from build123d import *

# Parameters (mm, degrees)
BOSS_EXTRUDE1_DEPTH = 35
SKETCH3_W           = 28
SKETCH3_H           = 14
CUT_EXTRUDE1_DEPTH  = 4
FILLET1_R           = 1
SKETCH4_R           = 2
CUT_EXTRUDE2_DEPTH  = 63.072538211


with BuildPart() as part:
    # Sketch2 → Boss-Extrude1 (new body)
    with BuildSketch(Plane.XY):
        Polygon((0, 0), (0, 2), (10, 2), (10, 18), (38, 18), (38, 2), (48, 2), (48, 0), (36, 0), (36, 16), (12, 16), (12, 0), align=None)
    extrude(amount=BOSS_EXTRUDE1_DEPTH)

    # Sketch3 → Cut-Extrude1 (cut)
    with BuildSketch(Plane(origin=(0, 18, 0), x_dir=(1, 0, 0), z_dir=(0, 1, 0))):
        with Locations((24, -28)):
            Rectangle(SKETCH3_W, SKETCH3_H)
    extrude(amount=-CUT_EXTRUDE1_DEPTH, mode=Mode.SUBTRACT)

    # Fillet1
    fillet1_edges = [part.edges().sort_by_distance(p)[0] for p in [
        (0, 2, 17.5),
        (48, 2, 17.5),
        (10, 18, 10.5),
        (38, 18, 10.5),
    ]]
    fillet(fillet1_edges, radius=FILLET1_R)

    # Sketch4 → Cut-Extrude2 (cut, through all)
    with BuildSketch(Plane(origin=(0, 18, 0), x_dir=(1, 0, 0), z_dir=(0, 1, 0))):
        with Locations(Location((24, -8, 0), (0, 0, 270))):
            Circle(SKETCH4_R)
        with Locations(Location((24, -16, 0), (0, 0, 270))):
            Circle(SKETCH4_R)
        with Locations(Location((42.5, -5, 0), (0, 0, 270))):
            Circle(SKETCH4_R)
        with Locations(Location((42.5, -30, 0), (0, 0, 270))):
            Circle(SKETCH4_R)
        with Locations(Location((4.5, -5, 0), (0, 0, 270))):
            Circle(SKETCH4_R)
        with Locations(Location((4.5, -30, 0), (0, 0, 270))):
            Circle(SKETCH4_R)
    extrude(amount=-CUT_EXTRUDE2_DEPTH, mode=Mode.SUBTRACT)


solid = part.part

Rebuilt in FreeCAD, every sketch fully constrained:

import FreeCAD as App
import Part
import Sketcher


def edges_at(feature, points):
    """Names of the edges that pass closest to the given points."""
    edges = feature.Shape.Edges
    near = lambda p: min(range(len(edges)), key=lambda i: edges[i].distToShape(Part.Vertex(*p))[0])
    return sorted({f"Edge{near(p) + 1}" for p in points})

doc = App.newDocument("Part")
body = doc.addObject("PartDesign::Body", "Body")

# Sketch on XY plane
sketch1 = body.newObject("Sketcher::SketchObject", "Sketch")
sketch1.AttachmentSupport = (doc.getObject("XY_Plane"), [""])
sketch1.MapMode = "FlatFace"
sketch1.addGeometry(Part.LineSegment(App.Vector(0, 2, 0), App.Vector(0, 0, 0)), False)
sketch1.addGeometry(Part.LineSegment(App.Vector(0, 0, 0), App.Vector(12, 0, 0)), False)
sketch1.addGeometry(Part.LineSegment(App.Vector(12, 0, 0), App.Vector(12, 16, 0)), False)
sketch1.addGeometry(Part.LineSegment(App.Vector(12, 16, 0), App.Vector(36, 16, 0)), False)
sketch1.addGeometry(Part.LineSegment(App.Vector(36, 16, 0), App.Vector(36, 0, 0)), False)
sketch1.addGeometry(Part.LineSegment(App.Vector(36, 0, 0), App.Vector(48, 0, 0)), False)
sketch1.addGeometry(Part.LineSegment(App.Vector(48, 0, 0), App.Vector(48, 2, 0)), False)
sketch1.addGeometry(Part.LineSegment(App.Vector(48, 2, 0), App.Vector(38, 2, 0)), False)
sketch1.addGeometry(Part.LineSegment(App.Vector(38, 2, 0), App.Vector(38, 18, 0)), False)
sketch1.addGeometry(Part.LineSegment(App.Vector(38, 18, 0), App.Vector(10, 18, 0)), False)
sketch1.addGeometry(Part.LineSegment(App.Vector(10, 18, 0), App.Vector(10, 2, 0)), False)
sketch1.addGeometry(Part.LineSegment(App.Vector(10, 2, 0), App.Vector(0, 2, 0)), False)
sketch1.addConstraint(Sketcher.Constraint("Coincident", 0, 2, 1, 1))
sketch1.addConstraint(Sketcher.Constraint("Coincident", 1, 2, 2, 1))
sketch1.addConstraint(Sketcher.Constraint("Coincident", 2, 2, 3, 1))
sketch1.addConstraint(Sketcher.Constraint("Coincident", 3, 2, 4, 1))
sketch1.addConstraint(Sketcher.Constraint("Coincident", 4, 2, 5, 1))
sketch1.addConstraint(Sketcher.Constraint("Coincident", 5, 2, 6, 1))
sketch1.addConstraint(Sketcher.Constraint("Coincident", 6, 2, 7, 1))
sketch1.addConstraint(Sketcher.Constraint("Coincident", 7, 2, 8, 1))
sketch1.addConstraint(Sketcher.Constraint("Coincident", 8, 2, 9, 1))
sketch1.addConstraint(Sketcher.Constraint("Coincident", 9, 2, 10, 1))
sketch1.addConstraint(Sketcher.Constraint("Coincident", 10, 2, 11, 1))
sketch1.addConstraint(Sketcher.Constraint("Coincident", 11, 2, 0, 1))
sketch1.addConstraint(Sketcher.Constraint("Vertical", 0))
sketch1.addConstraint(Sketcher.Constraint("Horizontal", 1))
sketch1.addConstraint(Sketcher.Constraint("Vertical", 2))
sketch1.addConstraint(Sketcher.Constraint("Horizontal", 3))
sketch1.addConstraint(Sketcher.Constraint("Vertical", 4))
sketch1.addConstraint(Sketcher.Constraint("Horizontal", 5))
sketch1.addConstraint(Sketcher.Constraint("Vertical", 6))
sketch1.addConstraint(Sketcher.Constraint("Horizontal", 7))
sketch1.addConstraint(Sketcher.Constraint("Vertical", 8))
sketch1.addConstraint(Sketcher.Constraint("Horizontal", 9))
sketch1.addConstraint(Sketcher.Constraint("Vertical", 10))
sketch1.addConstraint(Sketcher.Constraint("Horizontal", 11))
sketch1.addConstraint(Sketcher.Constraint("Coincident", 0, 2, -1, 1))
sketch1.addConstraint(Sketcher.Constraint("PointOnObject", 4, 2, -1))
sketch1.addConstraint(Sketcher.Constraint("Horizontal", 7, 2, 10, 2))
sketch1.addConstraint(Sketcher.Constraint("Equal", 1, 5))
sketch1.addConstraint(Sketcher.Constraint("Equal", 7, 11))
sketch1.addConstraint(Sketcher.Constraint("Equal", 4, 8))
sketch1.addConstraint(Sketcher.Constraint("DistanceX", 1, 1, 1, 2, 12.0))
sketch1.addConstraint(Sketcher.Constraint("DistanceX", 3, 1, 3, 2, 24.0))
sketch1.addConstraint(Sketcher.Constraint("DistanceX", 7, 2, 7, 1, 10.0))
sketch1.addConstraint(Sketcher.Constraint("DistanceY", 0, 2, 0, 1, 2.0))
sketch1.addConstraint(Sketcher.Constraint("DistanceY", 2, 1, 2, 2, 16.0))
pad1 = body.newObject("PartDesign::Pad", "Pad")
pad1.Profile = sketch1
pad1.Length = 35

# Sketch on XZ plane
sketch2 = body.newObject("Sketcher::SketchObject", "Sketch001")
sketch2.AttachmentSupport = (doc.getObject("XZ_Plane"), [""])
sketch2.MapMode = "FlatFace"
sketch2.AttachmentOffset = App.Placement(App.Vector(0, 0, -18), App.Rotation())
sketch2.addGeometry(Part.LineSegment(App.Vector(10, 21, 0), App.Vector(10, 35, 0)), False)
sketch2.addGeometry(Part.LineSegment(App.Vector(10, 35, 0), App.Vector(38, 35, 0)), False)
sketch2.addGeometry(Part.LineSegment(App.Vector(38, 35, 0), App.Vector(38, 21, 0)), False)
sketch2.addGeometry(Part.LineSegment(App.Vector(38, 21, 0), App.Vector(10, 21, 0)), False)
sketch2.addConstraint(Sketcher.Constraint("Coincident", 0, 2, 1, 1))
sketch2.addConstraint(Sketcher.Constraint("Coincident", 1, 2, 2, 1))
sketch2.addConstraint(Sketcher.Constraint("Coincident", 2, 2, 3, 1))
sketch2.addConstraint(Sketcher.Constraint("Coincident", 3, 2, 0, 1))
sketch2.addConstraint(Sketcher.Constraint("Vertical", 0))
sketch2.addConstraint(Sketcher.Constraint("Horizontal", 1))
sketch2.addConstraint(Sketcher.Constraint("Vertical", 2))
sketch2.addConstraint(Sketcher.Constraint("Horizontal", 3))
sketch2.addConstraint(Sketcher.Constraint("DistanceX", 1, 1, 1, 2, 28.0))
sketch2.addConstraint(Sketcher.Constraint("DistanceY", 0, 1, 0, 2, 14.0))
sketch2.addConstraint(Sketcher.Constraint("DistanceX", -1, 1, 0, 2, 10.0))
sketch2.addConstraint(Sketcher.Constraint("DistanceY", -1, 1, 0, 2, 35.0))
pocket1 = body.newObject("PartDesign::Pocket", "Pocket")
pocket1.Profile = sketch2
pocket1.Length = 4
pocket1.Reversed = True
doc.recompute()

fillet = body.newObject("PartDesign::Fillet", "Fillet")
fillet.Base = (pocket1, edges_at(pocket1, [
    (0, 2, 17.5),
    (48, 2, 17.5),
    (10, 18, 10.5),
    (38, 18, 10.5),
]))
fillet.Radius = 1

# Sketch on XZ plane
sketch3 = body.newObject("Sketcher::SketchObject", "Sketch002")
sketch3.AttachmentSupport = (doc.getObject("XZ_Plane"), [""])
sketch3.MapMode = "FlatFace"
sketch3.AttachmentOffset = App.Placement(App.Vector(0, 0, -18), App.Rotation())
sketch3.addGeometry(Part.Circle(App.Vector(24, 8, 0), App.Vector(0, 0, 1), 2), False)
sketch3.addGeometry(Part.Circle(App.Vector(24, 16, 0), App.Vector(0, 0, 1), 2), False)
sketch3.addGeometry(Part.Circle(App.Vector(42.5, 5, 0), App.Vector(0, 0, 1), 2), False)
sketch3.addGeometry(Part.Circle(App.Vector(42.5, 30, 0), App.Vector(0, 0, 1), 2), False)
sketch3.addGeometry(Part.Circle(App.Vector(4.5, 5, 0), App.Vector(0, 0, 1), 2), False)
sketch3.addGeometry(Part.Circle(App.Vector(4.5, 30, 0), App.Vector(0, 0, 1), 2), False)
sketch3.addConstraint(Sketcher.Constraint("Equal", 0, 1))
sketch3.addConstraint(Sketcher.Constraint("Equal", 1, 2))
sketch3.addConstraint(Sketcher.Constraint("Equal", 2, 3))
sketch3.addConstraint(Sketcher.Constraint("Equal", 3, 4))
sketch3.addConstraint(Sketcher.Constraint("Equal", 4, 5))
sketch3.addConstraint(Sketcher.Constraint("Horizontal", 2, 3, 4, 3))
sketch3.addConstraint(Sketcher.Constraint("Horizontal", 3, 3, 5, 3))
sketch3.addConstraint(Sketcher.Constraint("Vertical", 0, 3, 1, 3))
sketch3.addConstraint(Sketcher.Constraint("Vertical", 2, 3, 3, 3))
sketch3.addConstraint(Sketcher.Constraint("Vertical", 4, 3, 5, 3))
sketch3.addConstraint(Sketcher.Constraint("Diameter", 0, 4.0))
sketch3.addConstraint(Sketcher.Constraint("DistanceX", -1, 1, 0, 3, 24.0))
sketch3.addConstraint(Sketcher.Constraint("DistanceY", -1, 1, 0, 3, 8.0))
sketch3.addConstraint(Sketcher.Constraint("DistanceY", -1, 1, 1, 3, 16.0))
sketch3.addConstraint(Sketcher.Constraint("DistanceY", -1, 1, 2, 3, 5.0))
sketch3.addConstraint(Sketcher.Constraint("DistanceY", -1, 1, 3, 3, 30.0))
sketch3.addConstraint(Sketcher.Constraint("DistanceX", 4, 3, 2, 3, 38.0))
sketch3.addConstraint(Sketcher.Constraint("DistanceX", -1, 1, 2, 3, 42.5))
pocket2 = body.newObject("PartDesign::Pocket", "Pocket001")
pocket2.Profile = sketch3
pocket2.Type = "ThroughAll"
pocket2.Reversed = True

doc.recompute()
